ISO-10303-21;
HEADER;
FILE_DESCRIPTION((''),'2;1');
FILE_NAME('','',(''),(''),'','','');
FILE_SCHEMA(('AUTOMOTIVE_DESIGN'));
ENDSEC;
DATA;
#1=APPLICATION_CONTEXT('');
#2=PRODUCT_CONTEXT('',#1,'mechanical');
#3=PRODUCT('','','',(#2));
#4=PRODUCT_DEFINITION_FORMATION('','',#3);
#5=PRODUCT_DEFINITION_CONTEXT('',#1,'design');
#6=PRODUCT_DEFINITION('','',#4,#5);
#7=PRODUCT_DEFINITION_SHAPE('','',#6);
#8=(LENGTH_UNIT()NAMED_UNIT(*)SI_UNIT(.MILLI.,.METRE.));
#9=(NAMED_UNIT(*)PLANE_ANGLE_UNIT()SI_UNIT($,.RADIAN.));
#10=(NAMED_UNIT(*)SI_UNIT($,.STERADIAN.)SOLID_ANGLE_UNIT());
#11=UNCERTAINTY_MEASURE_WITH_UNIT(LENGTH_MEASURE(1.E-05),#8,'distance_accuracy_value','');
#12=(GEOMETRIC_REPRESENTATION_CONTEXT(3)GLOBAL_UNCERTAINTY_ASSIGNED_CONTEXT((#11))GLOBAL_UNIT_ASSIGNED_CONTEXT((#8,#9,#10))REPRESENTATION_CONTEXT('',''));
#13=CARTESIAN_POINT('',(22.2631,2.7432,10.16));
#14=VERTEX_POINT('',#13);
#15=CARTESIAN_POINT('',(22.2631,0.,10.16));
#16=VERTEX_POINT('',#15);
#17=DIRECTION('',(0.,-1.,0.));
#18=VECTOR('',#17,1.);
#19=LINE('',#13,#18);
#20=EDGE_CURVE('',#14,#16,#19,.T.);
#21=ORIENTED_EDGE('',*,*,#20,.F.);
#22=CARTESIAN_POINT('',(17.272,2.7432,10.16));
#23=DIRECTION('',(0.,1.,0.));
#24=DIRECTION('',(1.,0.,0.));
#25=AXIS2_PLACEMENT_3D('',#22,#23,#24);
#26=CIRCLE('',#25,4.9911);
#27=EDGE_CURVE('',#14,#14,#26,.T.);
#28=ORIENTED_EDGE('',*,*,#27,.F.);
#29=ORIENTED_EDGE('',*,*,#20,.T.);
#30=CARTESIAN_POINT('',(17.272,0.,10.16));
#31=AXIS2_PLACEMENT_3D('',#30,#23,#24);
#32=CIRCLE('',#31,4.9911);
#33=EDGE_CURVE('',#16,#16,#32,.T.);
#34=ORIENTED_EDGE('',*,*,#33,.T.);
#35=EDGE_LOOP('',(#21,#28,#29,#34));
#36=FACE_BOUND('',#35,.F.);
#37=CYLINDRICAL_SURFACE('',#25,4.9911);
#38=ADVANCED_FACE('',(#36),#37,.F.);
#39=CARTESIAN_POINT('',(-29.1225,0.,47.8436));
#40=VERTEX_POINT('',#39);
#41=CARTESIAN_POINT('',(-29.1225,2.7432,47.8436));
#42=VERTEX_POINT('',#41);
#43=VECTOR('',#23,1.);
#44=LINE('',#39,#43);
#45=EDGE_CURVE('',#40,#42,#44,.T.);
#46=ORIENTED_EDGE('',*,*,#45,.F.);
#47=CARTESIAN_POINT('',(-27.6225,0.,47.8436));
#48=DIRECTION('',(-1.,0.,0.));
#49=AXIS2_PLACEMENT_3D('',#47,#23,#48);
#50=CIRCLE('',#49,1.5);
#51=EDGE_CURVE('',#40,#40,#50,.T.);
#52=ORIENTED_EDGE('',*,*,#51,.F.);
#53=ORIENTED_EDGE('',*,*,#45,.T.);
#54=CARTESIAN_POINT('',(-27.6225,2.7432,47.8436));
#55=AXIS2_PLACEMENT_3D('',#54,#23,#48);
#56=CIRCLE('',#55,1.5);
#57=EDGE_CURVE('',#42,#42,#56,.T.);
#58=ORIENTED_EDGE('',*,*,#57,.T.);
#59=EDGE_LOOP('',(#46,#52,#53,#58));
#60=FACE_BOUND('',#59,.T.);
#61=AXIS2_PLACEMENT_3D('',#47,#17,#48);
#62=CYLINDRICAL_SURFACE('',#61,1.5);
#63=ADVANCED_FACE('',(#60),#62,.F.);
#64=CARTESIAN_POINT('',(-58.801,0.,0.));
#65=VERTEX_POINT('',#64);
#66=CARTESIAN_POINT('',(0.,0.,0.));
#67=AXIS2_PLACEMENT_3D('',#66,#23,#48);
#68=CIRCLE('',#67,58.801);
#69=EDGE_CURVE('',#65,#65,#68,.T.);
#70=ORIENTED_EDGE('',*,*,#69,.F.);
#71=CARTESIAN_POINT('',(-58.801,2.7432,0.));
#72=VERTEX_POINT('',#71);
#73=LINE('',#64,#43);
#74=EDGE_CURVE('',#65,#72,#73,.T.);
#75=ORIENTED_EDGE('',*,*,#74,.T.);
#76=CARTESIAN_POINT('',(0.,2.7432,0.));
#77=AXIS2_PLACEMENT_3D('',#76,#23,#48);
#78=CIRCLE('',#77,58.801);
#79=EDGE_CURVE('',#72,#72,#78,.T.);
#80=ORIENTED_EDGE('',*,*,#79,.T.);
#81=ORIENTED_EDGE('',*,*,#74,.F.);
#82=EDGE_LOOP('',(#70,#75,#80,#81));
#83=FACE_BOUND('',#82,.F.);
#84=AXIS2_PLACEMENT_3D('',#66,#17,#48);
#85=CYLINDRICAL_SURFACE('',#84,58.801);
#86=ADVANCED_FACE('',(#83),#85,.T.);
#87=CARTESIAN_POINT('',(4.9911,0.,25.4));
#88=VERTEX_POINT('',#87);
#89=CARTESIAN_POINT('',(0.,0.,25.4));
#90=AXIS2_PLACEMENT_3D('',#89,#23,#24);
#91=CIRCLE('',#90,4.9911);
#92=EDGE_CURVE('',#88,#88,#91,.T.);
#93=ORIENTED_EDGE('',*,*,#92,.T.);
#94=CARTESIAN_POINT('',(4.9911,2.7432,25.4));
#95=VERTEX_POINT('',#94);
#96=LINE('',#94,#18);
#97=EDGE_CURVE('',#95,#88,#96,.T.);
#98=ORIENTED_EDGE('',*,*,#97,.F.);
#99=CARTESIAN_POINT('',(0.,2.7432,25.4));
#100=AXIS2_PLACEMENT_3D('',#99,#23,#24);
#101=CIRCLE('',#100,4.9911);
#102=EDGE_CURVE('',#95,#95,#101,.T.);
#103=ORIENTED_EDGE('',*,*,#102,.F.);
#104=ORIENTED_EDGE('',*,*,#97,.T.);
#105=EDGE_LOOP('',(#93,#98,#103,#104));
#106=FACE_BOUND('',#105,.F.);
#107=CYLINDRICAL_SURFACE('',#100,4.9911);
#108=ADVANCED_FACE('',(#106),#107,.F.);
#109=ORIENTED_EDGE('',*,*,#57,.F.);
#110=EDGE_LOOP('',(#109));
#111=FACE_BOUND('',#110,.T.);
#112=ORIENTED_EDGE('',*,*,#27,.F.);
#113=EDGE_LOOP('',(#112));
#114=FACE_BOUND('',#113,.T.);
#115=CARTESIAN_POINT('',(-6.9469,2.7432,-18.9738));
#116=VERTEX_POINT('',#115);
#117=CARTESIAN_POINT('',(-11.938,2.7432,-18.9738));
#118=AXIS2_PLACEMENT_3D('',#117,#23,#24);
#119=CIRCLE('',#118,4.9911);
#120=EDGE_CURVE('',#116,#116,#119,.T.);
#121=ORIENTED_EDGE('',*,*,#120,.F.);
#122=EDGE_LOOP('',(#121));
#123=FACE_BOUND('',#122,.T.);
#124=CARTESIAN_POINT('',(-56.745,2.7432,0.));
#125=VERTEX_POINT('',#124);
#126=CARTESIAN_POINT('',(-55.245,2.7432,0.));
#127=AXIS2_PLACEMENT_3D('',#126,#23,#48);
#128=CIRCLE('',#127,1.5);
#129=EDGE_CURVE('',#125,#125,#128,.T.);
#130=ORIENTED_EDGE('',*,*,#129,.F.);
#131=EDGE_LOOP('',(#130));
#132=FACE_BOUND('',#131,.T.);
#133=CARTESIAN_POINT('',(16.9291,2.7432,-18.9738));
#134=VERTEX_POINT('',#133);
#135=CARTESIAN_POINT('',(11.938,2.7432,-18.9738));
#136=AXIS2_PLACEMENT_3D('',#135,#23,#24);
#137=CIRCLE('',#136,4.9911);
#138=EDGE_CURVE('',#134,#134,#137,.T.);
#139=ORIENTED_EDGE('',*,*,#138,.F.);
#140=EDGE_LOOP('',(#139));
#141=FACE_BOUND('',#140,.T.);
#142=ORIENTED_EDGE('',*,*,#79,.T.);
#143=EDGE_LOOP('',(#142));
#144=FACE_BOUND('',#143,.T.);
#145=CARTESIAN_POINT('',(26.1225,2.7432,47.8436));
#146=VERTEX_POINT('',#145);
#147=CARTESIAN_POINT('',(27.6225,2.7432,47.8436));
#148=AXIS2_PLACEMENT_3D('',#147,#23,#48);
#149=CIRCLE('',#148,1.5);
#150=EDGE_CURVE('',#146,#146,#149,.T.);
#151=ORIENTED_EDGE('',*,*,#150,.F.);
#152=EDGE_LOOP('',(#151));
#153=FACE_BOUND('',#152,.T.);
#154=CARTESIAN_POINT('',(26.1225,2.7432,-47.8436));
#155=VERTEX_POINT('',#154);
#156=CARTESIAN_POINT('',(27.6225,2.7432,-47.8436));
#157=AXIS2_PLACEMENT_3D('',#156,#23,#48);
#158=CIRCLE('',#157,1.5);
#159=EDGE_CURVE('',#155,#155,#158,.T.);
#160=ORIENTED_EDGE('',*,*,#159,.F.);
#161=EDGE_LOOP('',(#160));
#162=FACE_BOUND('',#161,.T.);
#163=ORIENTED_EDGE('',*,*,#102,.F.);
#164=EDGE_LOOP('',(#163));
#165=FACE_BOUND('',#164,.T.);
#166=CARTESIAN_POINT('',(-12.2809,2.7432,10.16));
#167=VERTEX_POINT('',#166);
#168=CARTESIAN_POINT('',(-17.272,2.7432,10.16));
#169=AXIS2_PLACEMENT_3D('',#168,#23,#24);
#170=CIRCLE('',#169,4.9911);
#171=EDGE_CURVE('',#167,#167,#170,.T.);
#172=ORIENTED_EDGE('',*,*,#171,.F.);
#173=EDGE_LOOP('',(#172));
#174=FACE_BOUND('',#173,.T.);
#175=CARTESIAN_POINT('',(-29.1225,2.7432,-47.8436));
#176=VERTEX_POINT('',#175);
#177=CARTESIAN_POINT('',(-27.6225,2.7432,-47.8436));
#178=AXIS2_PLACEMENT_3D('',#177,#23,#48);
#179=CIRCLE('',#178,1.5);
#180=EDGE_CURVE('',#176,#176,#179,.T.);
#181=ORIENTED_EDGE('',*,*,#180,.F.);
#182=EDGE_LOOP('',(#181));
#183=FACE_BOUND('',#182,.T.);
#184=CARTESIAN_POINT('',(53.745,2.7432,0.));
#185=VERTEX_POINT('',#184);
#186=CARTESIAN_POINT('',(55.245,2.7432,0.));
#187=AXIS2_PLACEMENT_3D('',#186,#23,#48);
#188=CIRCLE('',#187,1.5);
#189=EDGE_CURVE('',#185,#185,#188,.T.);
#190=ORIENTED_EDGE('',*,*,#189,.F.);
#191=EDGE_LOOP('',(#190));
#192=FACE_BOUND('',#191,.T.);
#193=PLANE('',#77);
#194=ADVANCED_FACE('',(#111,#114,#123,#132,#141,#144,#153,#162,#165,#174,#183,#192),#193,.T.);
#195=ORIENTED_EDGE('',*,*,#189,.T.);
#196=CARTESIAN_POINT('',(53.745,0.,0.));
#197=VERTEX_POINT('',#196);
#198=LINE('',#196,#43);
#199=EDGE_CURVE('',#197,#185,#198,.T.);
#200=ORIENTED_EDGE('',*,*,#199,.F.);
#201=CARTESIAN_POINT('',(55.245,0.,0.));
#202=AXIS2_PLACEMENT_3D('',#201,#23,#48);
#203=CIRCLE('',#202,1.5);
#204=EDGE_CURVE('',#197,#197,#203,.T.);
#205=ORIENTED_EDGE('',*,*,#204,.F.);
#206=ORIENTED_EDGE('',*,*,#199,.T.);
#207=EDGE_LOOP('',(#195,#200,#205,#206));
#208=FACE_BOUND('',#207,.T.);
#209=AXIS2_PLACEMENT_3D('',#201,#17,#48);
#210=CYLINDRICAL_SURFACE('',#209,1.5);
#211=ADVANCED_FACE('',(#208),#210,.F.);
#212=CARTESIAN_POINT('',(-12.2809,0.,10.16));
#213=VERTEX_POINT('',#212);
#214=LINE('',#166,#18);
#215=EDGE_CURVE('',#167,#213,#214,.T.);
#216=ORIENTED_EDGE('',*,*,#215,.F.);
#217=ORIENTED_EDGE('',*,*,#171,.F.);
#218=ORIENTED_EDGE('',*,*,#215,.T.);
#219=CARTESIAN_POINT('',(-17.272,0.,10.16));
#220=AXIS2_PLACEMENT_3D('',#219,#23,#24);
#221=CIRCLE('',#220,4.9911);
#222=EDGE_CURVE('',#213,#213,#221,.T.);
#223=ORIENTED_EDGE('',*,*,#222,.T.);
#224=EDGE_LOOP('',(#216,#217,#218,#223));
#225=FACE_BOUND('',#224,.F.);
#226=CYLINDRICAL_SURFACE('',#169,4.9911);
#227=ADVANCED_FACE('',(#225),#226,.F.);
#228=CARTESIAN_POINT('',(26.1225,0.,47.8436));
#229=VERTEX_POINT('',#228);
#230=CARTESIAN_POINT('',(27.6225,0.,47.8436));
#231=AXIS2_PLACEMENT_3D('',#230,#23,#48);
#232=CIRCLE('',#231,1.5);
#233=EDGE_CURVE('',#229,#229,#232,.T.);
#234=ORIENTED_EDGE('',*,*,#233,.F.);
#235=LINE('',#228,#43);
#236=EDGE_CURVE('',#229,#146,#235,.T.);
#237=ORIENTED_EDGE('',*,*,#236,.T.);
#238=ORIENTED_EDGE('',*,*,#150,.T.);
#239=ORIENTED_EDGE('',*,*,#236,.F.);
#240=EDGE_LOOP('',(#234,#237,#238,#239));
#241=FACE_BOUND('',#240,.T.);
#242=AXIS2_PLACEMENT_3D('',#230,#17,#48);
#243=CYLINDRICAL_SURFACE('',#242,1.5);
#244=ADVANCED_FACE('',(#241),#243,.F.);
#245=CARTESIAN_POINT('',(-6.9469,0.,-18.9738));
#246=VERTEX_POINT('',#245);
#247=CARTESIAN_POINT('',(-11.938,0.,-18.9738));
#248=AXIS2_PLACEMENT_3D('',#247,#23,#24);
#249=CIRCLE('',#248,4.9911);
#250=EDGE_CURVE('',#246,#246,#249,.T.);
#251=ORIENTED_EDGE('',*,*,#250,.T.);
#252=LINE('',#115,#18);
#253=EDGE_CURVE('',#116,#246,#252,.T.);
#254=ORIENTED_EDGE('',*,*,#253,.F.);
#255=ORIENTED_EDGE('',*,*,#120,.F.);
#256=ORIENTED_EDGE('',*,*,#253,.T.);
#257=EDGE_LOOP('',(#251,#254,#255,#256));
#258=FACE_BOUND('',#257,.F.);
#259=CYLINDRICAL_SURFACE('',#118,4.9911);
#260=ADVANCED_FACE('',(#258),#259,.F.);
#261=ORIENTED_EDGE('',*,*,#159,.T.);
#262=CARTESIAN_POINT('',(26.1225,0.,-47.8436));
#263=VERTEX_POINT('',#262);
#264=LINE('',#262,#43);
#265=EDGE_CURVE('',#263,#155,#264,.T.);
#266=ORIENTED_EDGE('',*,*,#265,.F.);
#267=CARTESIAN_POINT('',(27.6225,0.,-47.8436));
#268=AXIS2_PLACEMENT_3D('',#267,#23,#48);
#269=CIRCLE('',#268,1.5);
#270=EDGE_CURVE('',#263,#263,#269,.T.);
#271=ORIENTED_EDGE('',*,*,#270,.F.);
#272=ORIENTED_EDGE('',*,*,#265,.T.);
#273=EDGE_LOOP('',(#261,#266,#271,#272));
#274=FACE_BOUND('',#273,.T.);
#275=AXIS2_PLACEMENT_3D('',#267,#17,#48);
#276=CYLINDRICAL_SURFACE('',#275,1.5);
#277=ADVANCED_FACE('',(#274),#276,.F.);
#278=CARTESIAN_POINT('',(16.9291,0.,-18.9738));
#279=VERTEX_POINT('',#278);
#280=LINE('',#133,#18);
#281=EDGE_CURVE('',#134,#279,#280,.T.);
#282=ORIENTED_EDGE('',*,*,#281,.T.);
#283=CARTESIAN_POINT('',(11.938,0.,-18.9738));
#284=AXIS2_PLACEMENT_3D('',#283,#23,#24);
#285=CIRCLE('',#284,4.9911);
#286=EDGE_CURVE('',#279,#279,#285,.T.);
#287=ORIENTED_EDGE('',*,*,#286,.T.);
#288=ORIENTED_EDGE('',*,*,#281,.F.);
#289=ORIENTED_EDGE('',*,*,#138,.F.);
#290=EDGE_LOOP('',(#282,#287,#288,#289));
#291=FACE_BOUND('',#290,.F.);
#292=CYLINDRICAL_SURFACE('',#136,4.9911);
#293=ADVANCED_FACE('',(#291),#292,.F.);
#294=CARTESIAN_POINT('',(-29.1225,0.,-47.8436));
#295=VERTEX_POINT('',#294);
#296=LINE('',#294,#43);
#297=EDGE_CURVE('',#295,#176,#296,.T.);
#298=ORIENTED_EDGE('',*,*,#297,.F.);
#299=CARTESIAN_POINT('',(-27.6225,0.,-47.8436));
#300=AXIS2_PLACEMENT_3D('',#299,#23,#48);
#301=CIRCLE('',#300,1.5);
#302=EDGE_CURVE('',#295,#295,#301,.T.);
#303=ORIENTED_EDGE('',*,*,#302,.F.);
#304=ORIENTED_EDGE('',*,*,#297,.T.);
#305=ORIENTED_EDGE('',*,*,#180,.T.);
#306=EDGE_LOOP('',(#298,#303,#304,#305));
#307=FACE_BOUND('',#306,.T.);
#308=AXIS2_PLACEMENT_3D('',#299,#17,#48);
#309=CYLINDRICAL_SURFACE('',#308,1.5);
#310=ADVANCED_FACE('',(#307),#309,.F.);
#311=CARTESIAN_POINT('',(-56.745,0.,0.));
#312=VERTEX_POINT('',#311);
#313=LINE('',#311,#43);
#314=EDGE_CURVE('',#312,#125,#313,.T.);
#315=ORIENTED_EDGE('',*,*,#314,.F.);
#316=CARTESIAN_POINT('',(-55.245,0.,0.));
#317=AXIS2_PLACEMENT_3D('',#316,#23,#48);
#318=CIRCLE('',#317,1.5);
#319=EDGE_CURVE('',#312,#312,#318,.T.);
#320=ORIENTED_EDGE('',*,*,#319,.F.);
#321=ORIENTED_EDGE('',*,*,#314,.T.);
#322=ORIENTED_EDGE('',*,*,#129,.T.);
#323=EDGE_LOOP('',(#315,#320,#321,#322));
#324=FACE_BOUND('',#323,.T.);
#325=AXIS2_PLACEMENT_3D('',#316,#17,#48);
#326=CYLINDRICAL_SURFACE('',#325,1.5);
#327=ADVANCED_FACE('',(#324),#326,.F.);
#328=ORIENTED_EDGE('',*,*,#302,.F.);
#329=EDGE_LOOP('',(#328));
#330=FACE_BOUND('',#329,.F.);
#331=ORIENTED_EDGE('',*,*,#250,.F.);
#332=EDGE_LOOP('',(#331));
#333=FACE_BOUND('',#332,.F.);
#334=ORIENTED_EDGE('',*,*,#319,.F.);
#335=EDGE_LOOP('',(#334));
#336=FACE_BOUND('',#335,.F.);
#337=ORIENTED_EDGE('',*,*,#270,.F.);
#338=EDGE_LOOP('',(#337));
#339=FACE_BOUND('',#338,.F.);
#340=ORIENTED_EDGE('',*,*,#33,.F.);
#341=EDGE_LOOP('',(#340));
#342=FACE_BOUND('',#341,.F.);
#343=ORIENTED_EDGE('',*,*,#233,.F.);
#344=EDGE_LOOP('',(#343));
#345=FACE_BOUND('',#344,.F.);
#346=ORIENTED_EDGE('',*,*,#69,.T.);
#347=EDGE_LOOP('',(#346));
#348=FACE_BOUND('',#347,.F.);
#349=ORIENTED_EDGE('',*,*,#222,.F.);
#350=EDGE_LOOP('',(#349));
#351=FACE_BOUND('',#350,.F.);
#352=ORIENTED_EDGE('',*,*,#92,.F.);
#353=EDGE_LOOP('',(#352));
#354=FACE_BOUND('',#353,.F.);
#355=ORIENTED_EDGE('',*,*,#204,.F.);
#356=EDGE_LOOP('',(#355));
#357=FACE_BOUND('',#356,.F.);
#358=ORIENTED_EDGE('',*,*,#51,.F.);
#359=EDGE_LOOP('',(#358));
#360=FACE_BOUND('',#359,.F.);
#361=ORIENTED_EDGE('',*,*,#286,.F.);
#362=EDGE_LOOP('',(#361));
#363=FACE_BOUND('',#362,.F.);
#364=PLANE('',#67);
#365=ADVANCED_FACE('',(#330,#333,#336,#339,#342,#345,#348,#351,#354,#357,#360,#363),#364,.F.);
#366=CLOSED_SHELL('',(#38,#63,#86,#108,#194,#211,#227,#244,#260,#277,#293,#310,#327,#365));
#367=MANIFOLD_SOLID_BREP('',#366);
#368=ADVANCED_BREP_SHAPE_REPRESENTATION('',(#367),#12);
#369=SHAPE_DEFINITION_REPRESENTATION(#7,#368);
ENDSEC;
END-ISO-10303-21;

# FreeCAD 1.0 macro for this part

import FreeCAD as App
import Part
import Sketcher

V = App.Vector
Q = App.Units.Quantity

doc = App.newDocument("Part")
body = doc.addObject("PartDesign::Body", "Body")

# Sketch on XZ plane
sketch1 = body.newObject("Sketcher::SketchObject", "Sketch")
sketch1.AttachmentSupport = (doc.getObject("XZ_Plane"), [""])
sketch1.MapMode = "FlatFace"
sketch1.addGeometry(Part.Circle(V(0, 0, 0), V(0, 0, 1), 58.8), False)
sketch1.addGeometry(Part.Circle(V(27.6, -47.8, 0), V(0, 0, 1), 1.5), False)
sketch1.addGeometry(Part.Circle(V(55.2, 0, 0), V(0, 0, 1), 1.5), False)
sketch1.addGeometry(Part.Circle(V(-27.6, -47.8, 0), V(0, 0, 1), 1.5), False)
sketch1.addGeometry(Part.Circle(V(-55.2, 0, 0), V(0, 0, 1), 1.5), False)
sketch1.addGeometry(Part.Circle(V(27.6, 47.8, 0), V(0, 0, 1), 1.5), False)
sketch1.addGeometry(Part.Circle(V(-27.6, 47.8, 0), V(0, 0, 1), 1.5), False)
sketch1.addConstraint(Sketcher.Constraint("Coincident", 0, 3, -1, 1))
sketch1.addConstraint(Sketcher.Constraint("Equal", 1, 2))
sketch1.addConstraint(Sketcher.Constraint("Equal", 2, 3))
sketch1.addConstraint(Sketcher.Constraint("Equal", 3, 4))
sketch1.addConstraint(Sketcher.Constraint("Equal", 4, 5))
sketch1.addConstraint(Sketcher.Constraint("Equal", 5, 6))
sketch1.addConstraint(Sketcher.Constraint("Symmetric", 2, 3, 4, 3, -1, 1))
sketch1.addConstraint(Sketcher.Constraint("Symmetric", 3, 3, 5, 3, -1, 1))
sketch1.addConstraint(Sketcher.Constraint("Symmetric", 1, 3, 6, 3, -1, 1))
sketch1.addConstraint(Sketcher.Constraint("Symmetric", 1, 3, 3, 3, -2))
sketch1.addConstraint(Sketcher.Constraint("PointOnObject", 2, 3, -1))
sketch1.addConstraint(Sketcher.Constraint("Diameter", 0, Q("4.63 in")))
sketch1.addConstraint(Sketcher.Constraint("Diameter", 1, Q("0.1181 in")))
sketch1.addConstraint(Sketcher.Constraint("DistanceX", -1, 1, 2, 3, Q("2.175 in")))
sketch1.addConstraint(Sketcher.Constraint("DistanceX", 3, 3, 1, 3, Q("2.175 in")))
sketch1.addConstraint(Sketcher.Constraint("DistanceY", 1, 3, -1, 1, Q("1.8836 in")))
pad1 = body.newObject("PartDesign::Pad", "Pad")
pad1.Profile = sketch1
pad1.Length = Q("0.108 in")
pad1.Reversed = True

# Sketch on XZ plane
sketch2 = body.newObject("Sketcher::SketchObject", "Sketch001")
sketch2.AttachmentSupport = (doc.getObject("XZ_Plane"), [""])
sketch2.MapMode = "FlatFace"
sketch2.AttachmentOffset = App.Placement(V(0, 0, -0.108 * 25.4), App.Rotation())
sketch2.addGeometry(Part.Circle(V(11.9, -19, 0), V(0, 0, 1), 5), False)
sketch2.addGeometry(Part.Circle(V(-11.9, -19, 0), V(0, 0, 1), 5), False)
sketch2.addGeometry(Part.Circle(V(17.3, 10.2, 0), V(0, 0, 1), 5), False)
sketch2.addGeometry(Part.Circle(V(-17.3, 10.2, 0), V(0, 0, 1), 5), False)
sketch2.addGeometry(Part.Circle(V(0, 25.4, 0), V(0, 0, 1), 5), False)
sketch2.addConstraint(Sketcher.Constraint("Equal", 0, 1))
sketch2.addConstraint(Sketcher.Constraint("Equal", 1, 2))
sketch2.addConstraint(Sketcher.Constraint("Equal", 2, 3))
sketch2.addConstraint(Sketcher.Constraint("Equal", 3, 4))
sketch2.addConstraint(Sketcher.Constraint("Symmetric", 0, 3, 1, 3, -2))
sketch2.addConstraint(Sketcher.Constraint("Symmetric", 2, 3, 3, 3, -2))
sketch2.addConstraint(Sketcher.Constraint("PointOnObject", 4, 3, -2))
sketch2.addConstraint(Sketcher.Constraint("Diameter", 0, Q("0.393 in")))
sketch2.addConstraint(Sketcher.Constraint("DistanceY", -1, 1, 4, 3, Q("1 in")))
sketch2.addConstraint(Sketcher.Constraint("DistanceY", -1, 1, 2, 3, Q("0.4 in")))
sketch2.addConstraint(Sketcher.Constraint("DistanceX", -1, 1, 0, 3, Q("0.47 in")))
sketch2.addConstraint(Sketcher.Constraint("DistanceX", -1, 1, 2, 3, Q("0.68 in")))
sketch2.addConstraint(Sketcher.Constraint("DistanceY", 0, 3, -1, 1, Q("0.747 in")))
pocket1 = body.newObject("PartDesign::Pocket", "Pocket")
pocket1.Profile = sketch2
pocket1.Length = Q("0.108 in")
pocket1.Reversed = True

doc.recompute()
